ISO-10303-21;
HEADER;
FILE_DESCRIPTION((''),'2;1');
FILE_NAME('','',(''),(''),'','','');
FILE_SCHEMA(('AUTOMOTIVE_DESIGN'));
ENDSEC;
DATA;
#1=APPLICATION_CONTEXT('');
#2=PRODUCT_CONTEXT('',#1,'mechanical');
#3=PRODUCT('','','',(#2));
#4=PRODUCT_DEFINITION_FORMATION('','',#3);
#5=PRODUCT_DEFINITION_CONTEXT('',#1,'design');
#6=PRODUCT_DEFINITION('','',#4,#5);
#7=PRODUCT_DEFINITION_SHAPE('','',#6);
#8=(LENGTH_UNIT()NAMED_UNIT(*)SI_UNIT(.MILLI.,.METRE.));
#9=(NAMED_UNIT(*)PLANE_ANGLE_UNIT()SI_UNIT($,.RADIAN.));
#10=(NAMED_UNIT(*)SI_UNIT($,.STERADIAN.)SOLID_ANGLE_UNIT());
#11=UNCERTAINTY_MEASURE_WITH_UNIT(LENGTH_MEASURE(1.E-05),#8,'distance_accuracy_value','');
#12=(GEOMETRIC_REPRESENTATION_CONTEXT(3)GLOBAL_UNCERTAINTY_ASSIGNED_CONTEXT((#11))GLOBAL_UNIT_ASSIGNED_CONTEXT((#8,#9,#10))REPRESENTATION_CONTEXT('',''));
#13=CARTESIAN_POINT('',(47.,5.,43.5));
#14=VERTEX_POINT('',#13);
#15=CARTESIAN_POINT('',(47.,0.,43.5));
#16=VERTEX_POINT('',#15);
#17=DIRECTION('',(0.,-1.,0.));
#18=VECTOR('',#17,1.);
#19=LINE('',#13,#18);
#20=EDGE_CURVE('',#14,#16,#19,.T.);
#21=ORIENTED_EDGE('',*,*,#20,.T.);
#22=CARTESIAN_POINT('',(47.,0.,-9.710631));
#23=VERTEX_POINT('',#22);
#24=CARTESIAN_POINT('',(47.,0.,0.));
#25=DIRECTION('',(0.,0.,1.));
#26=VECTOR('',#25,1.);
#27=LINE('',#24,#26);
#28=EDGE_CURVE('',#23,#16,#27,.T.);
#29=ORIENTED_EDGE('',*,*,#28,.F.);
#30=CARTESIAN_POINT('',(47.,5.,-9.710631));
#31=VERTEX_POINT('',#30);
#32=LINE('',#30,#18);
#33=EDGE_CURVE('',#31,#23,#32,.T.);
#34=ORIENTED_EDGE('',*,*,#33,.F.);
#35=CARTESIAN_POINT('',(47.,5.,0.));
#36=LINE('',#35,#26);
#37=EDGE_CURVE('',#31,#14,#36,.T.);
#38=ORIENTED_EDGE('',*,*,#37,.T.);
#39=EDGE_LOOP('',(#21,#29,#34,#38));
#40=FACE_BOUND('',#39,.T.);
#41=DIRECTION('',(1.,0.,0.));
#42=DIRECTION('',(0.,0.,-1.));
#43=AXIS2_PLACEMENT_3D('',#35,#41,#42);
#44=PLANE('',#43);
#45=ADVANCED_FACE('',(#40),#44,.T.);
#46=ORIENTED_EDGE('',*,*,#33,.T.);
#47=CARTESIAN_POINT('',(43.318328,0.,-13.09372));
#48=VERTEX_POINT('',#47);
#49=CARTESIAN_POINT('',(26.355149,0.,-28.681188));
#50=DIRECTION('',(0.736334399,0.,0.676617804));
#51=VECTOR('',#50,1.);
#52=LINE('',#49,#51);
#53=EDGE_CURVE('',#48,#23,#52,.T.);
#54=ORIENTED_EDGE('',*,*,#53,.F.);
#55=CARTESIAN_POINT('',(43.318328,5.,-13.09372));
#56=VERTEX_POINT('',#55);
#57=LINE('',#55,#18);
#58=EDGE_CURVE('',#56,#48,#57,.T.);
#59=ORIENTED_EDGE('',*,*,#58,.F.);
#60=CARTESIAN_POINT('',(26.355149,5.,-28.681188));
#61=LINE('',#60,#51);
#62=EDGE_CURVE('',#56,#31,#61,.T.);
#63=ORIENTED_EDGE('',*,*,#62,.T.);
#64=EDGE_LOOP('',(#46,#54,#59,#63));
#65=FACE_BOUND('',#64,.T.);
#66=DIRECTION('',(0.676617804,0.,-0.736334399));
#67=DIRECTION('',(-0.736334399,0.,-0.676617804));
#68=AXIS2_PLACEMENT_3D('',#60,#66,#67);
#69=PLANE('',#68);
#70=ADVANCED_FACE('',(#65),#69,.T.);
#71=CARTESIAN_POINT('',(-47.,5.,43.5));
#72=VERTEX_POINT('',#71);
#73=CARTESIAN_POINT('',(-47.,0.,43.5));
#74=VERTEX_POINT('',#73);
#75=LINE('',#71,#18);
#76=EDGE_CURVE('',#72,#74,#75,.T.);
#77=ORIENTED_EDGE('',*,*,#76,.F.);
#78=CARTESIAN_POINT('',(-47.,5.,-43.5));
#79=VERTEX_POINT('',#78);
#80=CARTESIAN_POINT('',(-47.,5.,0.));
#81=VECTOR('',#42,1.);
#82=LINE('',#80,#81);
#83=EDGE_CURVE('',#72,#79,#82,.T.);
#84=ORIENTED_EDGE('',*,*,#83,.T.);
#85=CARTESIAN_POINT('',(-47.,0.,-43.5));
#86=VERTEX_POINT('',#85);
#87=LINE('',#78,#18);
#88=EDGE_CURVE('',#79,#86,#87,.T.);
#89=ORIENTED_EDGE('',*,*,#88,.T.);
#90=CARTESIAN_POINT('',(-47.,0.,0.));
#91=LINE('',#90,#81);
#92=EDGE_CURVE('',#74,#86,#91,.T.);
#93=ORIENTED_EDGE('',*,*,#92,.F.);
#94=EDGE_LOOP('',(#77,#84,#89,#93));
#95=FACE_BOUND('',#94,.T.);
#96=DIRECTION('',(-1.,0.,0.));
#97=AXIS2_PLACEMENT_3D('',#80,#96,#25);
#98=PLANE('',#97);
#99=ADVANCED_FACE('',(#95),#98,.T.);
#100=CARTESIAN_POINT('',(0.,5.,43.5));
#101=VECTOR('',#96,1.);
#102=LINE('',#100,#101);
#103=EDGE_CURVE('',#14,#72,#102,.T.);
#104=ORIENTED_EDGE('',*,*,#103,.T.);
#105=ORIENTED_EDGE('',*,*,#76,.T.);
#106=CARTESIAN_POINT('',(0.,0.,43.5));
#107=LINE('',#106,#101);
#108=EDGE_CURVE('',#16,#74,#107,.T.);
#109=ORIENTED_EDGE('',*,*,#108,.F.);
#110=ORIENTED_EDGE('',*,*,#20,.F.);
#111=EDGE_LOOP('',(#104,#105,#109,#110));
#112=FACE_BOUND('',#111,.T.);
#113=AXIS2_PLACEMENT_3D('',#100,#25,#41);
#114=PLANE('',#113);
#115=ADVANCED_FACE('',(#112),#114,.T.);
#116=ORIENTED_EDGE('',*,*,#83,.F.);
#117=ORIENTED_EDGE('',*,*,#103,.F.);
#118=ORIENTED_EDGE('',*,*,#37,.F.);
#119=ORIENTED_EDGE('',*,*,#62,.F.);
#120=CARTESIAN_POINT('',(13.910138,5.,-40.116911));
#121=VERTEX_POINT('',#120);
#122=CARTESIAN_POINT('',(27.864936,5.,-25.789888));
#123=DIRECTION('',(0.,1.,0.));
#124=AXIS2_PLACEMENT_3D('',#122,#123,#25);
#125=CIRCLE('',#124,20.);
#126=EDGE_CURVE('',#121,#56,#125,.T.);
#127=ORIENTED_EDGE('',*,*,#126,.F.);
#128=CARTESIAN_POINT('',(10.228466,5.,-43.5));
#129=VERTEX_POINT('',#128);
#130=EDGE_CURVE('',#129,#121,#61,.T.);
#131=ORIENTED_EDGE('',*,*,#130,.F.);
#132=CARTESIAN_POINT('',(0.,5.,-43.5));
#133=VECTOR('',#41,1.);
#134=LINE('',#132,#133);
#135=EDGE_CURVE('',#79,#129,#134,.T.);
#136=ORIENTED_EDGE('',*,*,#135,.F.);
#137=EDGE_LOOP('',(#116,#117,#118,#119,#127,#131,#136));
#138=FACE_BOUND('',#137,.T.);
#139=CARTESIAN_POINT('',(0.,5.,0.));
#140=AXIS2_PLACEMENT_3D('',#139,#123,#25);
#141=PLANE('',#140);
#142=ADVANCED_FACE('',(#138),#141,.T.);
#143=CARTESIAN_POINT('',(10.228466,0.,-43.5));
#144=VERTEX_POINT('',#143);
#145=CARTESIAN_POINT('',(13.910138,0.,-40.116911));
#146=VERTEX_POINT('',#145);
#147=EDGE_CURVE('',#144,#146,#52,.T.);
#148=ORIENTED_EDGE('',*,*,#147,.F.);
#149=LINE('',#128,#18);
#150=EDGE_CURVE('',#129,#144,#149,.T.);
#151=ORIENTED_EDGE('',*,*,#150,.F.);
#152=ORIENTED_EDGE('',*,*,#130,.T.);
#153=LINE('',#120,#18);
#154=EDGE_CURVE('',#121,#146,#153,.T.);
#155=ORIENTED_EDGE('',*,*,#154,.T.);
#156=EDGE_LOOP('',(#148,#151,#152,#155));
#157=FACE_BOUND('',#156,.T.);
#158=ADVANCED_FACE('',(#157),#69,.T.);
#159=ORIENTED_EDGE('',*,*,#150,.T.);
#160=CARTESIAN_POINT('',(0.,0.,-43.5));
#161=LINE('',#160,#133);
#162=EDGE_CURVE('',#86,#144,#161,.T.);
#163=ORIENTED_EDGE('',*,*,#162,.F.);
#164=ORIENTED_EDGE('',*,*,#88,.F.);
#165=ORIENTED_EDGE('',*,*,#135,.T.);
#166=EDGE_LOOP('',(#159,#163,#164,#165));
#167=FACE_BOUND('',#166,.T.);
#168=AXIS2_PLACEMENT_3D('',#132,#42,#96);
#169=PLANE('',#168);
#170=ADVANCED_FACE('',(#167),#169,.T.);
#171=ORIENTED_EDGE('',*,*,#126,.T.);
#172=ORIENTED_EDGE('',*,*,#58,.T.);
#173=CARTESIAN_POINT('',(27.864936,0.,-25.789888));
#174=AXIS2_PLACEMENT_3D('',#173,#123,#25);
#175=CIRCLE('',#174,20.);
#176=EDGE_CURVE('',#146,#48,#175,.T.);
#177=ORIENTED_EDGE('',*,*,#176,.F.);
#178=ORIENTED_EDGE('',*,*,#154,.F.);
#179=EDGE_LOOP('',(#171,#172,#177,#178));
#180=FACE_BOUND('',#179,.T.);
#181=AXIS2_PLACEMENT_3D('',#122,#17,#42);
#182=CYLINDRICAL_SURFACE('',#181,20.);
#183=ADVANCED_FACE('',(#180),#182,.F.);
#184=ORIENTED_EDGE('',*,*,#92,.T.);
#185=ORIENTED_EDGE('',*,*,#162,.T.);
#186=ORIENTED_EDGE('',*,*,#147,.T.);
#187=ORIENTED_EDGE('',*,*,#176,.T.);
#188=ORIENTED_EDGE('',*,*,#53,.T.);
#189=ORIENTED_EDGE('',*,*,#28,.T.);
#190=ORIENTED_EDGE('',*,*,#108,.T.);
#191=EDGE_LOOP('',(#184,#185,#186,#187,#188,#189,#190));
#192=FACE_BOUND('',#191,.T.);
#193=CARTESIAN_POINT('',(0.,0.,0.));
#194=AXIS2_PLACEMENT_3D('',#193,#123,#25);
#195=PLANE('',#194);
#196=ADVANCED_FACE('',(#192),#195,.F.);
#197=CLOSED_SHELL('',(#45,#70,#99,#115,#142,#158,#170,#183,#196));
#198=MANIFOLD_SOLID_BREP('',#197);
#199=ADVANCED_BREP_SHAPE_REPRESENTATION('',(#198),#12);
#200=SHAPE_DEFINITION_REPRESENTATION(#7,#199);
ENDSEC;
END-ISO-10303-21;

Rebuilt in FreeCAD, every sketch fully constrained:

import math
import FreeCAD as App
import Part
import Sketcher
from FreeCAD import Vector

doc = App.newDocument("Part")
body = doc.addObject("PartDesign::Body", "Body")

sketch1 = body.newObject("Sketcher::SketchObject", "Sketch")
sketch1.AttachmentSupport = (doc.getObject("XZ_Plane"), [""])
sketch1.MapMode = "FlatFace"
sketch1.addGeometry([
    Part.LineSegment(Vector(10.228466, -43.5, 0), Vector(-47, -43.5, 0)),
    Part.LineSegment(Vector(-47, -43.5, 0), Vector(-47, 43.5, 0)),
    Part.LineSegment(Vector(-47, 43.5, 0), Vector(47, 43.5, 0)),
    Part.LineSegment(Vector(47, 43.5, 0), Vector(47, -9.710631, 0)),
    Part.LineSegment(Vector(47, -9.710631, 0), Vector(43.318328, -13.09372, 0)),
    Part.ArcOfCircle(Part.Circle(Vector(27.864936, -25.789888, 0), Vector(0, 0, 1), 20), math.radians(39.405775), math.radians(225.754042)),
    Part.LineSegment(Vector(13.910138, -40.116911, 0), Vector(10.228466, -43.5, 0)),
], False)
sketch1.addConstraint([
    Sketcher.Constraint("Coincident", 0, 2, 1, 1),
    Sketcher.Constraint("Coincident", 1, 2, 2, 1),
    Sketcher.Constraint("Coincident", 2, 2, 3, 1),
    Sketcher.Constraint("Coincident", 3, 2, 4, 1),
    Sketcher.Constraint("Coincident", 4, 2, 5, 1),
    Sketcher.Constraint("Coincident", 5, 2, 6, 1),
    Sketcher.Constraint("Coincident", 6, 2, 0, 1),
    Sketcher.Constraint("Horizontal", 0),
    Sketcher.Constraint("Vertical", 1),
    Sketcher.Constraint("Horizontal", 2),
    Sketcher.Constraint("Vertical", 3),
    Sketcher.Constraint("Symmetric", 0, 2, 2, 2, -1, 1),
    Sketcher.Constraint("Parallel", 4, 6),
    Sketcher.Constraint("Equal", 4, 6),
    Sketcher.Constraint("Radius", 5, 20.0),
    Sketcher.Constraint("DistanceX", 2, 1, 2, 2, 94.0),
    Sketcher.Constraint("DistanceY", 1, 1, 1, 2, 87.0),
    Sketcher.Constraint("Distance", 4, 5.0),
    Sketcher.Constraint("DistanceY", 3, 2, 3, 1, 53.210631),
    Sketcher.Constraint("DistanceX", 5, 2, 5, 3, 13.954799),
    Sketcher.Constraint("DistanceX", 0, 2, 0, 1, 57.228466),
])
pad1 = body.newObject("PartDesign::Pad", "Pad")
pad1.Profile = sketch1
pad1.Length = 5
pad1.Reversed = True

doc.recompute()
